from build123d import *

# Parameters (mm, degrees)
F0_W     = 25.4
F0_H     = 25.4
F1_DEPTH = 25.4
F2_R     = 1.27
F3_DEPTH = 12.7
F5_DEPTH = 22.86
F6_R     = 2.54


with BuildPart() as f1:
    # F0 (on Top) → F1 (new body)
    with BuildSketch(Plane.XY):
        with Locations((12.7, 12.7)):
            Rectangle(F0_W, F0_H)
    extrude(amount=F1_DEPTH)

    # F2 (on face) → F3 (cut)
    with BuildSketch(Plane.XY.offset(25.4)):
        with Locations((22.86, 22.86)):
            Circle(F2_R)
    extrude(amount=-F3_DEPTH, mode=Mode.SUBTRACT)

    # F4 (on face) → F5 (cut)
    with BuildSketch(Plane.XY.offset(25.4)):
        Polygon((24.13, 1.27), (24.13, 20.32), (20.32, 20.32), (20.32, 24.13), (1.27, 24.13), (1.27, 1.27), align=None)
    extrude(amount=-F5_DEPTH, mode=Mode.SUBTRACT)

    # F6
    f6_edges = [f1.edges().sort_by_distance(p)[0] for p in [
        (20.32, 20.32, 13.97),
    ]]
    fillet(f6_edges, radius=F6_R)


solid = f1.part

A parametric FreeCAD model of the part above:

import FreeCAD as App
import Part
import Sketcher
Q = App.Units.Quantity


def edges_at(feature, points):
    """Names of the edges that pass closest to the given points."""
    edges = feature.Shape.Edges
    near = lambda p: min(range(len(edges)), key=lambda i: edges[i].distToShape(Part.Vertex(*p))[0])
    return sorted({f"Edge{near(p) + 1}" for p in points})

doc = App.newDocument("Part")
body = doc.addObject("PartDesign::Body", "Body")

# Sketch on XY plane
sketch1 = body.newObject("Sketcher::SketchObject", "Sketch")
sketch1.AttachmentSupport = (doc.getObject("XY_Plane"), [""])
sketch1.MapMode = "FlatFace"
sketch1.addGeometry(Part.LineSegment(App.Vector(0, 25, 0), App.Vector(0, 0, 0)), False)
sketch1.addGeometry(Part.LineSegment(App.Vector(0, 0, 0), App.Vector(25, 0, 0)), False)
sketch1.addGeometry(Part.LineSegment(App.Vector(25, 0, 0), App.Vector(25, 25, 0)), False)
sketch1.addGeometry(Part.LineSegment(App.Vector(25, 25, 0), App.Vector(0, 25, 0)), False)
sketch1.addConstraint(Sketcher.Constraint("Coincident", 0, 2, 1, 1))
sketch1.addConstraint(Sketcher.Constraint("Coincident", 1, 2, 2, 1))
sketch1.addConstraint(Sketcher.Constraint("Coincident", 2, 2, 3, 1))
sketch1.addConstraint(Sketcher.Constraint("Coincident", 3, 2, 0, 1))
sketch1.addConstraint(Sketcher.Constraint("Vertical", 0))
sketch1.addConstraint(Sketcher.Constraint("Horizontal", 1))
sketch1.addConstraint(Sketcher.Constraint("Vertical", 2))
sketch1.addConstraint(Sketcher.Constraint("Horizontal", 3))
sketch1.addConstraint(Sketcher.Constraint("Coincident", 0, 2, -1, 1))
sketch1.addConstraint(Sketcher.Constraint("Equal", 3, 0))
sketch1.addConstraint(Sketcher.Constraint("DistanceX", 1, 1, 1, 2, Q("1 in")))
pad1 = body.newObject("PartDesign::Pad", "Pad")
pad1.Profile = sketch1
pad1.Length = Q("1 in")

# Sketch on XY plane
sketch2 = body.newObject("Sketcher::SketchObject", "Sketch001")
sketch2.AttachmentSupport = (doc.getObject("XY_Plane"), [""])
sketch2.MapMode = "FlatFace"
sketch2.AttachmentOffset = App.Placement(App.Vector(0, 0, 1 * 25.4), App.Rotation())
sketch2.addGeometry(Part.Circle(App.Vector(22.9, 22.9, 0), App.Vector(0, 0, 1), 1.3), False)
sketch2.addConstraint(Sketcher.Constraint("Diameter", 0, Q("0.1 in")))
sketch2.addConstraint(Sketcher.Constraint("DistanceX", -1, 1, 0, 3, Q("0.9 in")))
sketch2.addConstraint(Sketcher.Constraint("DistanceY", -1, 1, 0, 3, Q("0.9 in")))
pocket1 = body.newObject("PartDesign::Pocket", "Pocket")
pocket1.Profile = sketch2
pocket1.Length = Q("0.5 in")

# Sketch on XY plane
sketch3 = body.newObject("Sketcher::SketchObject", "Sketch002")
sketch3.AttachmentSupport = (doc.getObject("XY_Plane"), [""])
sketch3.MapMode = "FlatFace"
sketch3.AttachmentOffset = App.Placement(App.Vector(0, 0, 1 * 25.4), App.Rotation())
sketch3.addGeometry(Part.LineSegment(App.Vector(24.1, 1.3, 0), App.Vector(24.1, 20.3, 0)), False)
sketch3.addGeometry(Part.LineSegment(App.Vector(24.1, 20.3, 0), App.Vector(20.3, 20.3, 0)), False)
sketch3.addGeometry(Part.LineSegment(App.Vector(20.3, 20.3, 0), App.Vector(20.3, 24.1, 0)), False)
sketch3.addGeometry(Part.LineSegment(App.Vector(20.3, 24.1, 0), App.Vector(1.3, 24.1, 0)), False)
sketch3.addGeometry(Part.LineSegment(App.Vector(1.3, 24.1, 0), App.Vector(1.3, 1.3, 0)), False)
sketch3.addGeometry(Part.LineSegment(App.Vector(1.3, 1.3, 0), App.Vector(24.1, 1.3, 0)), False)
sketch3.addConstraint(Sketcher.Constraint("Coincident", 0, 2, 1, 1))
sketch3.addConstraint(Sketcher.Constraint("Coincident", 1, 2, 2, 1))
sketch3.addConstraint(Sketcher.Constraint("Coincident", 2, 2, 3, 1))
sketch3.addConstraint(Sketcher.Constraint("Coincident", 3, 2, 4, 1))
sketch3.addConstraint(Sketcher.Constraint("Coincident", 4, 2, 5, 1))
sketch3.addConstraint(Sketcher.Constraint("Coincident", 5, 2, 0, 1))
sketch3.addConstraint(Sketcher.Constraint("Vertical", 0))
sketch3.addConstraint(Sketcher.Constraint("Horizontal", 1))
sketch3.addConstraint(Sketcher.Constraint("Vertical", 2))
sketch3.addConstraint(Sketcher.Constraint("Horizontal", 3))
sketch3.addConstraint(Sketcher.Constraint("Vertical", 4))
sketch3.addConstraint(Sketcher.Constraint("Horizontal", 5))
sketch3.addConstraint(Sketcher.Constraint("Equal", 3, 0))
sketch3.addConstraint(Sketcher.Constraint("Equal", 1, 2))
sketch3.addConstraint(Sketcher.Constraint("DistanceX", 5, 1, 5, 2, Q("0.9 in")))
sketch3.addConstraint(Sketcher.Constraint("DistanceX", 1, 2, 1, 1, Q("0.15 in")))
sketch3.addConstraint(Sketcher.Constraint("DistanceY", -1, 1, 0, 2, Q("0.8 in")))
sketch3.addConstraint(Sketcher.Constraint("DistanceX", -1, 1, 1, 2, Q("0.8 in")))
pocket2 = body.newObject("PartDesign::Pocket", "Pocket001")
pocket2.Profile = sketch3
pocket2.Length = Q("0.9 in")
doc.recompute()

fillet = body.newObject("PartDesign::Fillet", "Fillet")
fillet.Base = (pocket2, edges_at(pocket2, [(20.32, 20.32, 13.97)]))
fillet.Radius = Q("0.1 in")

doc.recompute()
